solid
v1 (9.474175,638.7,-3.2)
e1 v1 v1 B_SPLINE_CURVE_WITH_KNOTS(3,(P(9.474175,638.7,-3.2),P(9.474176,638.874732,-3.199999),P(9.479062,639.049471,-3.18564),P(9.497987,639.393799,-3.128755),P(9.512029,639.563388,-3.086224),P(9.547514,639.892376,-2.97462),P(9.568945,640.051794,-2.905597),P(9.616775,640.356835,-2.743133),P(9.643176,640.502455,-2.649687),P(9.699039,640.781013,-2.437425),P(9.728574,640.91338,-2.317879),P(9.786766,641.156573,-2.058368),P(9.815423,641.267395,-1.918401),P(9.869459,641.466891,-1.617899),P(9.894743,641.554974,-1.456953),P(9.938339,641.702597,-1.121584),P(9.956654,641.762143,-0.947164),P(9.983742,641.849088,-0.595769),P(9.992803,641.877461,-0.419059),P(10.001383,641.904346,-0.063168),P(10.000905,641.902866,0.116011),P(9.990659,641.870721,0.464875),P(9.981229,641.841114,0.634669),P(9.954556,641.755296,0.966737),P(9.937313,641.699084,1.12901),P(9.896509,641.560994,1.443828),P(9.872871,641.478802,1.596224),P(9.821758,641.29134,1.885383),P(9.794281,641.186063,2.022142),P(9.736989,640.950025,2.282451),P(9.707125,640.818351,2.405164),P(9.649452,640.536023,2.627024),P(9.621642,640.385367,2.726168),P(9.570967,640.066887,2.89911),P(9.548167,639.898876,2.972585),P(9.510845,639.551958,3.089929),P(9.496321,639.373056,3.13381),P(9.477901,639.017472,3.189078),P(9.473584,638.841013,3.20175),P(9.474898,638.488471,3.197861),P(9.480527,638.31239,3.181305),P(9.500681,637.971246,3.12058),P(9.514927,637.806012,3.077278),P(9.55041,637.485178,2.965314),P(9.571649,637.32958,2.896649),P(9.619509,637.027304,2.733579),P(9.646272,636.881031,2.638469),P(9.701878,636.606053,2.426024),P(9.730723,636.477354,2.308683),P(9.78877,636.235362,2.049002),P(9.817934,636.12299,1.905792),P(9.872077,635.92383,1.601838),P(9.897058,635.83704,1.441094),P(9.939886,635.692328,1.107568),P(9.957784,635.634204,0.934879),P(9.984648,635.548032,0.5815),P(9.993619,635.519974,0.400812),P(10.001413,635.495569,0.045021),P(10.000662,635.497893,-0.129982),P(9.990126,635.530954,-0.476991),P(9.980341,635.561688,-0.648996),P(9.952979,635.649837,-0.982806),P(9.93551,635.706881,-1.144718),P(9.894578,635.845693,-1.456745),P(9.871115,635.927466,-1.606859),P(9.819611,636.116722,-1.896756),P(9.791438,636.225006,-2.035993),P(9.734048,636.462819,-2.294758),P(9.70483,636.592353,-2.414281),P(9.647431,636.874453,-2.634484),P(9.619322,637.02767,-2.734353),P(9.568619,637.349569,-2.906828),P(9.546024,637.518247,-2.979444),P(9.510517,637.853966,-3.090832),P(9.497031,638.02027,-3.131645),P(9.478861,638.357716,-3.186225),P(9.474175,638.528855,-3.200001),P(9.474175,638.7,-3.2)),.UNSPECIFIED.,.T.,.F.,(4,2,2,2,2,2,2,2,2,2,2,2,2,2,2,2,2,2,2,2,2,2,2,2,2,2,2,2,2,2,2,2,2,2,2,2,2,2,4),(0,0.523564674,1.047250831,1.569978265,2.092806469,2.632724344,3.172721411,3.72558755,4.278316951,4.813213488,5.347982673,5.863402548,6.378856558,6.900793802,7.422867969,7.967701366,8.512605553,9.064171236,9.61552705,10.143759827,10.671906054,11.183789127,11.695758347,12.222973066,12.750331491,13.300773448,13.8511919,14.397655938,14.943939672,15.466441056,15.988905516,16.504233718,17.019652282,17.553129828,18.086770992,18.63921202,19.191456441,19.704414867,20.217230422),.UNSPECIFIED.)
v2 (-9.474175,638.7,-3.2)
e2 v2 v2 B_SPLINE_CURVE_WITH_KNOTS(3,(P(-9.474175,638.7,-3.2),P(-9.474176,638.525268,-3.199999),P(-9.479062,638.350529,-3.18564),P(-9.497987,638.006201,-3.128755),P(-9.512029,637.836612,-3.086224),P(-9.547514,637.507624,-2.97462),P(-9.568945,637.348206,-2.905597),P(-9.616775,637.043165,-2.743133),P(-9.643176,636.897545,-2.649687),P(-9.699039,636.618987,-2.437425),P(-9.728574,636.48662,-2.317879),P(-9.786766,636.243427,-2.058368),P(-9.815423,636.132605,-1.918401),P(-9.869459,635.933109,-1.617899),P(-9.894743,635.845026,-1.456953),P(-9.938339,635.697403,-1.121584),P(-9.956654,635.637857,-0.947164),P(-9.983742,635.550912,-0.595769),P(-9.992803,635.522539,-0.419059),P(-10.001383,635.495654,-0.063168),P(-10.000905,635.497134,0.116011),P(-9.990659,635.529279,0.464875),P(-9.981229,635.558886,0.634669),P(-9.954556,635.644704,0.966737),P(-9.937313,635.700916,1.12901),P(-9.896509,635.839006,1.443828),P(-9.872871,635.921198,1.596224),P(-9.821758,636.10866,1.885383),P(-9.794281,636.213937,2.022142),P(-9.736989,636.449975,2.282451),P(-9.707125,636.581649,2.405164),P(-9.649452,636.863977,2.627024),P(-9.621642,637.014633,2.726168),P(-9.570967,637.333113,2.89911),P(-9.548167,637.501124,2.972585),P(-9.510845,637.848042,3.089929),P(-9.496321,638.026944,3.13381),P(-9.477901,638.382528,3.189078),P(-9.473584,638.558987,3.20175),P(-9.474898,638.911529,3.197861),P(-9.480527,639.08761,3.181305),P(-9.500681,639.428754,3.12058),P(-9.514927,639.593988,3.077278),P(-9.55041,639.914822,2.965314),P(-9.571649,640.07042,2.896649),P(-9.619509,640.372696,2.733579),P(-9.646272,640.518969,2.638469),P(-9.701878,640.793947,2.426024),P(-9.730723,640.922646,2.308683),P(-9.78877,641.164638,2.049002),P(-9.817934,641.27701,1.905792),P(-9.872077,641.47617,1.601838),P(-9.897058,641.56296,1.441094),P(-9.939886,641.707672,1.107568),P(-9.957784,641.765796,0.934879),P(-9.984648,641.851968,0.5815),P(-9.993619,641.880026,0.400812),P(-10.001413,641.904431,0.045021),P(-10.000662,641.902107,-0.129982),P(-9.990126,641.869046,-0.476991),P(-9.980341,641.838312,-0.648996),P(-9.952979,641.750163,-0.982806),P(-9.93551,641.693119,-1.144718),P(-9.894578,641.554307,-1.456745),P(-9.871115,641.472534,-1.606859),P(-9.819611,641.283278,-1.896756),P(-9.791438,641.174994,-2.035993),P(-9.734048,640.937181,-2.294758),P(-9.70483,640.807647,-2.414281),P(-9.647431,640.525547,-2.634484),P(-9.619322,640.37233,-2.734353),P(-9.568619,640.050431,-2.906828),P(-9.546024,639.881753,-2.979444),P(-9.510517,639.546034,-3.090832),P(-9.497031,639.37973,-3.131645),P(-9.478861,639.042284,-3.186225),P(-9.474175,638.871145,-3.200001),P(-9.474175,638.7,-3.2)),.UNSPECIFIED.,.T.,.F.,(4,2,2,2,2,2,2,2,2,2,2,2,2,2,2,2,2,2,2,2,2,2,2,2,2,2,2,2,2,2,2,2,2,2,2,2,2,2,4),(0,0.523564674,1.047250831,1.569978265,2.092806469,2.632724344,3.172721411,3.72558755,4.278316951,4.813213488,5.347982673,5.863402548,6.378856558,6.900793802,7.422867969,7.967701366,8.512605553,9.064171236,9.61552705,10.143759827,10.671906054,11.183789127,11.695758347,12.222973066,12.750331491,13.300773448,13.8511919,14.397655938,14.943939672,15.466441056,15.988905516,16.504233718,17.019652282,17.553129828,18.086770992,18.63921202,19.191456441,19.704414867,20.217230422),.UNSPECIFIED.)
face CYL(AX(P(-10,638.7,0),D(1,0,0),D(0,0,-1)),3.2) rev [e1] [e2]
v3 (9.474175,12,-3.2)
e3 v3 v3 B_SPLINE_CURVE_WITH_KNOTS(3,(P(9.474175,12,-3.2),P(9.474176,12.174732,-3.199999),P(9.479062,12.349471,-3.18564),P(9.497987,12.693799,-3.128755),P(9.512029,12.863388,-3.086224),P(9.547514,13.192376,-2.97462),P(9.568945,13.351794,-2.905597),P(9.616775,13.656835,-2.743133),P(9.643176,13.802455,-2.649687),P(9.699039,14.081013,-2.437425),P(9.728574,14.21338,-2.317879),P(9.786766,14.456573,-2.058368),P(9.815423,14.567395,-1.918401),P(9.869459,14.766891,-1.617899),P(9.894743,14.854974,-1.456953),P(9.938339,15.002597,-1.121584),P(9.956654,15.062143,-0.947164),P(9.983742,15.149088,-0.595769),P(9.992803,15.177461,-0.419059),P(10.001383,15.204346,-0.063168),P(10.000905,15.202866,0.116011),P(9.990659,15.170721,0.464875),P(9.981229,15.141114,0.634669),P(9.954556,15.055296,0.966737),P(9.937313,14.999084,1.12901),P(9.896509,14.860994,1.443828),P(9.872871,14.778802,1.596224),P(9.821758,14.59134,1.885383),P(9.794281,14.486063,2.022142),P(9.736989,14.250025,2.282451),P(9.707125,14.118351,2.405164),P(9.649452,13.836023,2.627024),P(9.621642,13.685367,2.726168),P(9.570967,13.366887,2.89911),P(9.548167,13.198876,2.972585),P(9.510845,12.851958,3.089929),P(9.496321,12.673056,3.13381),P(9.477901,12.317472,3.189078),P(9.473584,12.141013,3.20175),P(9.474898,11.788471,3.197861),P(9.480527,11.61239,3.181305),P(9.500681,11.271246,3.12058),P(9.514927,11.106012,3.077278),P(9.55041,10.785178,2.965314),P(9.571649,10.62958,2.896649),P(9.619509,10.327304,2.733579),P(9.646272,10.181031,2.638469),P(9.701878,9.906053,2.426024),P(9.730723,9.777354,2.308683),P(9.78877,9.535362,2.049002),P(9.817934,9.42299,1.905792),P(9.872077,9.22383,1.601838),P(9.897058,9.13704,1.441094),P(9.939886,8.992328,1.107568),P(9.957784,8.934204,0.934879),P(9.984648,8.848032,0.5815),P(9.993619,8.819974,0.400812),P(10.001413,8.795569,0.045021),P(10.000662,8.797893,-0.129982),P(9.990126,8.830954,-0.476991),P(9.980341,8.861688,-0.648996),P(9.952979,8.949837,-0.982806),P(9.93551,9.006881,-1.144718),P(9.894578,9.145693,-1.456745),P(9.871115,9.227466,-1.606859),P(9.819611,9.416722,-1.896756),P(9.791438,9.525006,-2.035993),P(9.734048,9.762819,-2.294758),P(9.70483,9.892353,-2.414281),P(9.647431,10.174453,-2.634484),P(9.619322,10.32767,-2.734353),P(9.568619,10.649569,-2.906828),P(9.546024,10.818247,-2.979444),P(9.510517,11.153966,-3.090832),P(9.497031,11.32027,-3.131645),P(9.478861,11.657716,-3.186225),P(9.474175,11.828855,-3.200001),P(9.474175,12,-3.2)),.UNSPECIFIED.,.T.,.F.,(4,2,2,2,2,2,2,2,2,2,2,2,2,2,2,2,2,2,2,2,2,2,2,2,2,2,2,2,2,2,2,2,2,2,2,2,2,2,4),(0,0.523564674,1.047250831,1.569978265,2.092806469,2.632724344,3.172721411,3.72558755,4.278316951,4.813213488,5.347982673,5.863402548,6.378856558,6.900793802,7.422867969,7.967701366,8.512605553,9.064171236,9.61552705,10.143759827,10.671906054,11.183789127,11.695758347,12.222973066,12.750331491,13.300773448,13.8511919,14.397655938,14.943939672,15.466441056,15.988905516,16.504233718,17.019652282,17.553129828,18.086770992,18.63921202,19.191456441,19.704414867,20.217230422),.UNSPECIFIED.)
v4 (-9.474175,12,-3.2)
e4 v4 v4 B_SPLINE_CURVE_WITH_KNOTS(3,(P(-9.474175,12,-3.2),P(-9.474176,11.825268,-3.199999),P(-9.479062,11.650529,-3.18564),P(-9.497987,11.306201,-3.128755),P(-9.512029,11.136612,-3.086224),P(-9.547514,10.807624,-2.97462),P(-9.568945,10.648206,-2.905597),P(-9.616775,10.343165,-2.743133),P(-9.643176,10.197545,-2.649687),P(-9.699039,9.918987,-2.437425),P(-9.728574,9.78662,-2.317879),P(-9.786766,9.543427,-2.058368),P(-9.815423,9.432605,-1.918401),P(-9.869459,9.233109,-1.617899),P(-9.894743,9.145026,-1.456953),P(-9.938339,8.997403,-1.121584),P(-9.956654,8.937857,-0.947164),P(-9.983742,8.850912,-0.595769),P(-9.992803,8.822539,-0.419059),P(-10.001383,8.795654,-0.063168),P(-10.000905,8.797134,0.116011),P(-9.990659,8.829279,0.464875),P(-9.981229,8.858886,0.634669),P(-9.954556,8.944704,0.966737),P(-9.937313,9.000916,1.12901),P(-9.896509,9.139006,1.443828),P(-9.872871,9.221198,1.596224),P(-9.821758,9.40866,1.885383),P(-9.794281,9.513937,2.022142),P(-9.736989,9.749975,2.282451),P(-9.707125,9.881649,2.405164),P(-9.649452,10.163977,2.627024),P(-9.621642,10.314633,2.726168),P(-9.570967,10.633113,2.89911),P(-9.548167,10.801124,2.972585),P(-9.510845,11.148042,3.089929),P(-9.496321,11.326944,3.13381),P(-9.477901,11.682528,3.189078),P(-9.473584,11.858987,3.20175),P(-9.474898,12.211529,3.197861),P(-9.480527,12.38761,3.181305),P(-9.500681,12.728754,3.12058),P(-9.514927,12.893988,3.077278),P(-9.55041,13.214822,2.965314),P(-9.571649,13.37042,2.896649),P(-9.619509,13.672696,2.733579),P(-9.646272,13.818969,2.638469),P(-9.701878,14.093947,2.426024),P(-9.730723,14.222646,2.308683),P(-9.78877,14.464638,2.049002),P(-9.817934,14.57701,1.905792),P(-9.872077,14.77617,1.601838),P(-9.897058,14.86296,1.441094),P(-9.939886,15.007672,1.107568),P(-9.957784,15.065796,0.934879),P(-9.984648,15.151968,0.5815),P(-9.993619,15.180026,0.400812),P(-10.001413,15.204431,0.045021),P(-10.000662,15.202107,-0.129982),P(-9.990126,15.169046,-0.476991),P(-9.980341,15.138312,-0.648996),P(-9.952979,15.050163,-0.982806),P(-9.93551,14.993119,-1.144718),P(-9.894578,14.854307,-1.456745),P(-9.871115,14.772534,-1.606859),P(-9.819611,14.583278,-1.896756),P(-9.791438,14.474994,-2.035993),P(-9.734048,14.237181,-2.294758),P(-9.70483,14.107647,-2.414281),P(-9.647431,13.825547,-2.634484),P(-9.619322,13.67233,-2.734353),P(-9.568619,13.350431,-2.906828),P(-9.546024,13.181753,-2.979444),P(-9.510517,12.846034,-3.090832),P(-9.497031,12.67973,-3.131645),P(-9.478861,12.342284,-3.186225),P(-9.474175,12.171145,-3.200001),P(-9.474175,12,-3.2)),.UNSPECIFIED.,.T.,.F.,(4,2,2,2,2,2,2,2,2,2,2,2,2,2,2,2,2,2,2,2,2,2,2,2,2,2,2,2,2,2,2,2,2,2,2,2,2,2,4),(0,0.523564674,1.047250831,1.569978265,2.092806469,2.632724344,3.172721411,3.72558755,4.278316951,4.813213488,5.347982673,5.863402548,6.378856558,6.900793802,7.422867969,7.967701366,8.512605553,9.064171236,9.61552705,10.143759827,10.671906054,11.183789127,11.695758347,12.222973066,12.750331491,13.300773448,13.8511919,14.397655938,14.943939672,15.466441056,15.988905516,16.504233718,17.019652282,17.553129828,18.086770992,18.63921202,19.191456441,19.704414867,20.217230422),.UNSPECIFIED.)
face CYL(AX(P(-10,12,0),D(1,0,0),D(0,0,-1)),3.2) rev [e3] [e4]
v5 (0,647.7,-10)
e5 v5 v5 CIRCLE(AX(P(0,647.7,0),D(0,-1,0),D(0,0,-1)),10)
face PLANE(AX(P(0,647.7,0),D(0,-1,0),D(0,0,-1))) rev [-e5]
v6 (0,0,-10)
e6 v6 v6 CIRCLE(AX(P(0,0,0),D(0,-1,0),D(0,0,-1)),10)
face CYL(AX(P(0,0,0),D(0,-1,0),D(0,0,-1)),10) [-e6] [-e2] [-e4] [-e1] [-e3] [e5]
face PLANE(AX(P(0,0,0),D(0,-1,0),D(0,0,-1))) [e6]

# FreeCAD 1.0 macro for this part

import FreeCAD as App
import Part
import Sketcher


def add_polygon(sketch, points):
    """Adds a closed chain of lines whose ends are joined by coincident constraints."""
    first, n = sketch.GeometryCount, len(points)
    for a, b in zip(points, points[1:] + points[:1]):
        sketch.addGeometry(Part.LineSegment(App.Vector(*a, 0), App.Vector(*b, 0)), False)
    for i in range(n):
        sketch.addConstraint(Sketcher.Constraint("Coincident", first + i, 2, first + (i + 1) % n, 1))

doc = App.newDocument("Part")
body = doc.addObject("PartDesign::Body", "Body")

# Sketch on YZ plane
sketch1 = body.newObject("Sketcher::SketchObject", "Sketch")
sketch1.AttachmentSupport = (doc.getObject("YZ_Plane"), [""])
sketch1.MapMode = "FlatFace"
add_polygon(sketch1, [(648, 10), (0, 10), (0, 0), (648, 0)])  # lines 0-3
sketch1.addConstraint([
    Sketcher.Constraint("Horizontal", 0),
    Sketcher.Constraint("Vertical", 1),
    Sketcher.Constraint("Horizontal", 2),
    Sketcher.Constraint("Vertical", 3),
    Sketcher.Constraint("Coincident", 1, 2, -1, 1),
    Sketcher.Constraint("DistanceY", 1, 2, 1, 1, 10.0),
    Sketcher.Constraint("DistanceX", 0, 2, 0, 1, 647.7),
])
revolution = body.newObject("PartDesign::Revolution", "Revolution")
revolution.Profile = sketch1
revolution.ReferenceAxis = (sketch1, ["H_Axis"])
revolution.Angle = 360

# Sketch on YZ plane
sketch2 = body.newObject("Sketcher::SketchObject", "Sketch001")
sketch2.AttachmentSupport = (doc.getObject("YZ_Plane"), [""])
sketch2.MapMode = "FlatFace"
sketch2.addGeometry([
    Part.Circle(App.Vector(638.7, 0, 0), App.Vector(0, 0, 1), 3.2),
    Part.Circle(App.Vector(12, 0, 0), App.Vector(0, 0, 1), 3.2),
], False)
sketch2.addConstraint([
    Sketcher.Constraint("Equal", 0, 1),
    Sketcher.Constraint("PointOnObject", 0, 3, -1),
    Sketcher.Constraint("PointOnObject", 1, 3, -1),
    Sketcher.Constraint("Diameter", 0, 6.4),
    Sketcher.Constraint("DistanceX", -1, 1, 1, 3, 12.0),
    Sketcher.Constraint("DistanceX", -1, 1, 0, 3, 638.7),
])
pocket1 = body.newObject("PartDesign::Pocket", "Pocket")
pocket1.Profile = sketch2
pocket1.Type = "ThroughAll"
pocket1.Midplane = True

doc.recompute()
